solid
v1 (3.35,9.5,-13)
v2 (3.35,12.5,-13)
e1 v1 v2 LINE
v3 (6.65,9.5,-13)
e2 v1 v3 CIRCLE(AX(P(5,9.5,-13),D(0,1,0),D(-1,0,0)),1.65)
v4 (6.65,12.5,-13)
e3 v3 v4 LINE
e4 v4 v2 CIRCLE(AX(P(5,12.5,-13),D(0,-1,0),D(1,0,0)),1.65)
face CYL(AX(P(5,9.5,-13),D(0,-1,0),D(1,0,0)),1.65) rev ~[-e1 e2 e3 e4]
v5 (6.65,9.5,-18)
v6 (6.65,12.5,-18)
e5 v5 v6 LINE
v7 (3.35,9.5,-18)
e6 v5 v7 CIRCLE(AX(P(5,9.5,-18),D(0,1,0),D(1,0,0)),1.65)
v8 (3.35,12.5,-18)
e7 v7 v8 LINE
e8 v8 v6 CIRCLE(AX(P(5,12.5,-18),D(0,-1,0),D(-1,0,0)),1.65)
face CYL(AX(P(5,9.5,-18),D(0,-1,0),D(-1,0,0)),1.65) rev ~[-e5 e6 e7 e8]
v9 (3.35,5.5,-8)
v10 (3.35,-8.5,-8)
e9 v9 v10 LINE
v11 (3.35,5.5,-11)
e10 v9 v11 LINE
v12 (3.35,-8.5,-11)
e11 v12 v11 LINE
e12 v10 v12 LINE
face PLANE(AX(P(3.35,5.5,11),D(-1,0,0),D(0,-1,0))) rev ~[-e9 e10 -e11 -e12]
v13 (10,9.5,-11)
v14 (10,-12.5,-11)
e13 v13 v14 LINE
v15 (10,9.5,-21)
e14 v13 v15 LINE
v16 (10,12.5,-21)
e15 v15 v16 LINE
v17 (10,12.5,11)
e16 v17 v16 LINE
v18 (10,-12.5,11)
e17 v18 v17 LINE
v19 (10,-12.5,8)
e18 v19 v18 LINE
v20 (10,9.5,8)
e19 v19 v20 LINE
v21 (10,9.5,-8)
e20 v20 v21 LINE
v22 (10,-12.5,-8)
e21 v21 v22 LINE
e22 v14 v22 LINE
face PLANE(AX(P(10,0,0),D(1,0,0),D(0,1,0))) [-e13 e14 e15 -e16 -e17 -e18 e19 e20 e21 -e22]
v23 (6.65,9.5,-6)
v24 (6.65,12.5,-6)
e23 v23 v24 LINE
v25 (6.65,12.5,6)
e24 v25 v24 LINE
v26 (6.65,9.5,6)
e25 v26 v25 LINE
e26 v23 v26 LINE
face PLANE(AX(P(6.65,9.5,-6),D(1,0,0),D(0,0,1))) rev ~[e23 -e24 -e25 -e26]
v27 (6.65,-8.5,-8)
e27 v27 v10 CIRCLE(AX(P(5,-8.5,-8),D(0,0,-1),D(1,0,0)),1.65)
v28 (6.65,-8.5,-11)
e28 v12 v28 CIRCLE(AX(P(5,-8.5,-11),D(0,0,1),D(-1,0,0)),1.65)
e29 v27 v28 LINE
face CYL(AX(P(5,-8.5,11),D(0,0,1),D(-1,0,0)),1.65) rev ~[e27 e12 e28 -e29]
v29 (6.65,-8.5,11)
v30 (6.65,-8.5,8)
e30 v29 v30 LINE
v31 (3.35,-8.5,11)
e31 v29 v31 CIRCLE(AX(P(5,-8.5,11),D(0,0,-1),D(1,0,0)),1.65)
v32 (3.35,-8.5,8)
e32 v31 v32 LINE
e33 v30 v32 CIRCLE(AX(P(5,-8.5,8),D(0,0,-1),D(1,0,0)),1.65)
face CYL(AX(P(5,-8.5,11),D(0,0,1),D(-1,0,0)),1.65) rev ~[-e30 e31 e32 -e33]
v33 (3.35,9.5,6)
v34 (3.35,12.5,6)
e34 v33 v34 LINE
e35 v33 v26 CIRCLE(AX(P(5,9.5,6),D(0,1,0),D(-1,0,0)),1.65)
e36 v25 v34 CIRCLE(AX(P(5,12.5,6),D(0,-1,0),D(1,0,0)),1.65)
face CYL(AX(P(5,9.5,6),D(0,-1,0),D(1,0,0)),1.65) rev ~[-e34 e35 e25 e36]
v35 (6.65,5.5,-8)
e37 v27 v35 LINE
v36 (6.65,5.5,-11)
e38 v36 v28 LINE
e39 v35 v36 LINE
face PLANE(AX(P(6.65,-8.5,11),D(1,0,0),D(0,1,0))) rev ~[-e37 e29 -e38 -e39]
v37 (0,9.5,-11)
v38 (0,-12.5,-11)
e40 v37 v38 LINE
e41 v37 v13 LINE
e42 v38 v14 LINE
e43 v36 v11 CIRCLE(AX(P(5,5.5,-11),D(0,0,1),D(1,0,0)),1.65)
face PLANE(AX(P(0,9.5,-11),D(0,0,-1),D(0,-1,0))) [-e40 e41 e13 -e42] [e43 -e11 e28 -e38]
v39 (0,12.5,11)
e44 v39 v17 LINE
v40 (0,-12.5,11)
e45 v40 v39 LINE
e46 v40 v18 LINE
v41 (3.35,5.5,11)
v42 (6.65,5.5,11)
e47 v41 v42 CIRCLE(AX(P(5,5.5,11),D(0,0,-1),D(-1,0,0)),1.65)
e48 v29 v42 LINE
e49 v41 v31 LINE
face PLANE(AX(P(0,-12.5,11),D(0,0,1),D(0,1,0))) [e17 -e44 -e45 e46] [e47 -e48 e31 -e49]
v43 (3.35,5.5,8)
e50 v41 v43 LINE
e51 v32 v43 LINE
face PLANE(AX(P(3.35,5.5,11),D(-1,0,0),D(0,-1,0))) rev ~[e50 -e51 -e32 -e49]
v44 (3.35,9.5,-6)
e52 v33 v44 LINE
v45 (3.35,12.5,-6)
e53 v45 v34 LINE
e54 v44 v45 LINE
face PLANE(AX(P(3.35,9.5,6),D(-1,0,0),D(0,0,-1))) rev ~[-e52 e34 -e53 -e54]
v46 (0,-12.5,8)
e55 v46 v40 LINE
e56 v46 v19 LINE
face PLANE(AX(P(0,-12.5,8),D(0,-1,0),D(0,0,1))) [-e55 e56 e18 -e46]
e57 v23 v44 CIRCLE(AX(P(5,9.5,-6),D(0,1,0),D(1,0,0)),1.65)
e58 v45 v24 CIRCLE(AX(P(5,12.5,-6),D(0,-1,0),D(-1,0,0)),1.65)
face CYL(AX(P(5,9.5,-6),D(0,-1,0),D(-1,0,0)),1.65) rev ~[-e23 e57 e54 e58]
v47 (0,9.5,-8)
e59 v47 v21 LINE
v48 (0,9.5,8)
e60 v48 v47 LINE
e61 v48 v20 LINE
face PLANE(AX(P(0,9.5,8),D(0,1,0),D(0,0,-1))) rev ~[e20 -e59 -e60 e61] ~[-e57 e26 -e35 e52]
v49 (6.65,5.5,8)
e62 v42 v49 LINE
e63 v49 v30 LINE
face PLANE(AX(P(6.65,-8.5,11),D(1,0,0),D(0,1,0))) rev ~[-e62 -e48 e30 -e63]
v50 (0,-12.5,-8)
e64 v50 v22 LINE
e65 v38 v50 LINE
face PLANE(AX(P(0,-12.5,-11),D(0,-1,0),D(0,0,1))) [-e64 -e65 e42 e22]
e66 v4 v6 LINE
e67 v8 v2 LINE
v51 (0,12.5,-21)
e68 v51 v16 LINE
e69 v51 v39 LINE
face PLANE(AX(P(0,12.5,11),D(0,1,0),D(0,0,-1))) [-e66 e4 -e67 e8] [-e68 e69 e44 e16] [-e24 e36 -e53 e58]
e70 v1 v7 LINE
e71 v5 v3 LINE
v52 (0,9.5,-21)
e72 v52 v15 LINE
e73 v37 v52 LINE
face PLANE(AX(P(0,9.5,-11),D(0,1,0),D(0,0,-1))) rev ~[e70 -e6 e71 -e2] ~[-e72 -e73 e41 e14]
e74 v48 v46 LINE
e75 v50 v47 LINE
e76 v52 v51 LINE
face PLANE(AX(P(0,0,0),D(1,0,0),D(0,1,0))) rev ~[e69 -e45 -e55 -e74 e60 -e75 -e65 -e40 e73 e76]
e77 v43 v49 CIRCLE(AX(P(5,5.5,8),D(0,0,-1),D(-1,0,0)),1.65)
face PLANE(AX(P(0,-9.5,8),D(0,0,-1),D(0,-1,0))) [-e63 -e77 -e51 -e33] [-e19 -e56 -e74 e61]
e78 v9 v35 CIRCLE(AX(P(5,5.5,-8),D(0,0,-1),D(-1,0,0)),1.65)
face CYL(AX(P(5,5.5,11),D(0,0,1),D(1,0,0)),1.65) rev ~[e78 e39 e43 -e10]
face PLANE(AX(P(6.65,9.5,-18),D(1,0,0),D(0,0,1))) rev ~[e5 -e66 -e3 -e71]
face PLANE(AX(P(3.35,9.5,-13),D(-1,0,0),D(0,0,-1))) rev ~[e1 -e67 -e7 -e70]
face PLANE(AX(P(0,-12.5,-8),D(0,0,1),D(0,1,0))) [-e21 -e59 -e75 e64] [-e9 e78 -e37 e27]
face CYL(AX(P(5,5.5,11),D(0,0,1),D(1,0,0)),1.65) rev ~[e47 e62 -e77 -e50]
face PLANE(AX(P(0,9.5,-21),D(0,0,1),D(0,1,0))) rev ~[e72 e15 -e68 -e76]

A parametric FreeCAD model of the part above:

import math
import FreeCAD as App
import Part
import Sketcher

V = App.Vector

doc = App.newDocument("Part")
params = doc.addObject("Spreadsheet::Sheet", "Params")
for row, (alias, value) in enumerate([
    ("sketch1_width", "25 mm"),
    ("sketch1_width2", "22 mm"),
    ("sketch1_height", "16 mm"),
    ("sketch1_height2", "10 mm"),
    ("pad1_length", "10 mm"),
    ("sketch2_radius", "1.65 mm"),
    ("sketch2_height", "12 mm"),
    ("sketch2_height2", "5 mm"),
    ("sketch3_radius", "1.65 mm"),
    ("sketch3_height", "14 mm"),
], start=1):
    params.set(f"A{row}", alias)
    params.set(f"B{row}", "=" + value)
    params.setAlias(f"B{row}", alias)

body = doc.addObject("PartDesign::Body", "Body")

sketch1 = body.newObject("Sketcher::SketchObject", "Sketch")
sketch1.AttachmentSupport = (doc.getObject("YZ_Plane"), [""])
sketch1.MapMode = "FlatFace"
sketch1.addGeometry([
    Part.LineSegment(V(12.5, 11, 0), V(-12.5, 11, 0)),
    Part.LineSegment(V(-12.5, 11, 0), V(-12.5, 8, 0)),
    Part.LineSegment(V(-12.5, 8, 0), V(9.5, 8, 0)),
    Part.LineSegment(V(9.5, 8, 0), V(9.5, -8, 0)),
    Part.LineSegment(V(9.5, -8, 0), V(-12.5, -8, 0)),
    Part.LineSegment(V(-12.5, -8, 0), V(-12.5, -11, 0)),
    Part.LineSegment(V(-12.5, -11, 0), V(9.5, -11, 0)),
    Part.LineSegment(V(9.5, -11, 0), V(9.5, -21, 0)),
    Part.LineSegment(V(9.5, -21, 0), V(12.5, -21, 0)),
    Part.LineSegment(V(12.5, -21, 0), V(12.5, 11, 0)),
], False)
sketch1.addConstraint([
    Sketcher.Constraint("Coincident", 0, 2, 1, 1),
    Sketcher.Constraint("Coincident", 1, 2, 2, 1),
    Sketcher.Constraint("Coincident", 2, 2, 3, 1),
    Sketcher.Constraint("Coincident", 3, 2, 4, 1),
    Sketcher.Constraint("Coincident", 4, 2, 5, 1),
    Sketcher.Constraint("Coincident", 5, 2, 6, 1),
    Sketcher.Constraint("Coincident", 6, 2, 7, 1),
    Sketcher.Constraint("Coincident", 7, 2, 8, 1),
    Sketcher.Constraint("Coincident", 8, 2, 9, 1),
    Sketcher.Constraint("Coincident", 9, 2, 0, 1),
    Sketcher.Constraint("Horizontal", 0),
    Sketcher.Constraint("Vertical", 1),
    Sketcher.Constraint("Horizontal", 2),
    Sketcher.Constraint("Vertical", 3),
    Sketcher.Constraint("Horizontal", 4),
    Sketcher.Constraint("Vertical", 5),
    Sketcher.Constraint("Horizontal", 6),
    Sketcher.Constraint("Vertical", 7),
    Sketcher.Constraint("Horizontal", 8),
    Sketcher.Constraint("Vertical", 9),
    Sketcher.Constraint("Symmetric", 5, 2, 9, 2, -1, 1),
    Sketcher.Constraint("Symmetric", 1, 2, 4, 2, -1),
    Sketcher.Constraint("Vertical", 3, 2, 6, 2),
    Sketcher.Constraint("Equal", 8, 1),
    Sketcher.Constraint("DistanceX", 0, 2, 0, 1, 25.0),
    Sketcher.Constraint("DistanceX", 2, 1, 2, 2, 22.0),
    Sketcher.Constraint("DistanceY", 3, 2, 3, 1, 16.0),
    Sketcher.Constraint("DistanceY", 7, 2, 7, 1, 10.0),
])
sketch1.setExpression("Constraints[24]", "Params.sketch1_width")
sketch1.setExpression("Constraints[25]", "Params.sketch1_width2")
sketch1.setExpression("Constraints[26]", "Params.sketch1_height")
sketch1.setExpression("Constraints[27]", "Params.sketch1_height2")
pad1 = body.newObject("PartDesign::Pad", "Pad")
pad1.Profile = sketch1
pad1.setExpression("Length", "Params.pad1_length")

sketch2 = body.newObject("Sketcher::SketchObject", "Sketch001")
sketch2.AttachmentSupport = (doc.getObject("XZ_Plane"), [""])
sketch2.MapMode = "FlatFace"
sketch2.AttachmentOffset = App.Placement(V(0, 0, -9.5), App.Rotation())
sketch2.addGeometry([
    Part.ArcOfCircle(Part.Circle(V(5, -6, 0), V(0, 0, 1), 1.65), math.radians(180), math.radians(360)),
    Part.LineSegment(V(6.65, -6, 0), V(6.65, 6, 0)),
    Part.ArcOfCircle(Part.Circle(V(5, 6, 0), V(0, 0, 1), 1.65), math.radians(0), math.radians(180)),
    Part.LineSegment(V(3.35, 6, 0), V(3.35, -6, 0)),
    Part.ArcOfCircle(Part.Circle(V(5, -13, 0), V(0, 0, 1), 1.65), math.radians(0), math.radians(180)),
    Part.LineSegment(V(3.35, -13, 0), V(3.35, -18, 0)),
    Part.ArcOfCircle(Part.Circle(V(5, -18, 0), V(0, 0, 1), 1.65), math.radians(180), math.radians(360)),
    Part.LineSegment(V(6.65, -18, 0), V(6.65, -13, 0)),
], False)
sketch2.addConstraint([
    Sketcher.Constraint("Tangent", 0, 2, 1, 1),
    Sketcher.Constraint("Tangent", 1, 2, 2, 1),
    Sketcher.Constraint("Tangent", 2, 2, 3, 1),
    Sketcher.Constraint("Tangent", 3, 2, 0, 1),
    Sketcher.Constraint("Tangent", 4, 2, 5, 1),
    Sketcher.Constraint("Tangent", 5, 2, 6, 1),
    Sketcher.Constraint("Tangent", 6, 2, 7, 1),
    Sketcher.Constraint("Tangent", 7, 2, 4, 1),
    Sketcher.Constraint("Vertical", 1),
    Sketcher.Constraint("Vertical", 3),
    Sketcher.Constraint("Vertical", 5),
    Sketcher.Constraint("Vertical", 7),
    Sketcher.Constraint("Equal", 2, 4),
    Sketcher.Constraint("Vertical", 2, 3, 4, 3),
    Sketcher.Constraint("Radius", 0, 1.65),
    Sketcher.Constraint("DistanceY", 1, 1, 1, 2, 12.0),
    Sketcher.Constraint("DistanceY", 5, 2, 5, 1, 5.0),
    Sketcher.Constraint("DistanceX", -1, 1, 0, 3, 5.0),
    Sketcher.Constraint("DistanceY", 0, 3, -1, 1, 6.0),
    Sketcher.Constraint("DistanceY", 4, 3, -1, 1, 13.0),
])
sketch2.setExpression("Constraints[14]", "Params.sketch2_radius")
sketch2.setExpression("Constraints[15]", "Params.sketch2_height")
sketch2.setExpression("Constraints[16]", "Params.sketch2_height2")
pocket1 = body.newObject("PartDesign::Pocket", "Pocket")
pocket1.Profile = sketch2
pocket1.Type = "ThroughAll"

sketch3 = body.newObject("Sketcher::SketchObject", "Sketch002")
sketch3.AttachmentSupport = (doc.getObject("XY_Plane"), [""])
sketch3.MapMode = "FlatFace"
sketch3.AttachmentOffset = App.Placement(V(0, 0, 11), App.Rotation())
sketch3.addGeometry([
    Part.ArcOfCircle(Part.Circle(V(5, -8.5, 0), V(0, 0, 1), 1.65), math.radians(180), math.radians(360)),
    Part.LineSegment(V(6.65, -8.5, 0), V(6.65, 5.5, 0)),
    Part.ArcOfCircle(Part.Circle(V(5, 5.5, 0), V(0, 0, 1), 1.65), math.radians(0), math.radians(180)),
    Part.LineSegment(V(3.35, 5.5, 0), V(3.35, -8.5, 0)),
], False)
sketch3.addConstraint([
    Sketcher.Constraint("Tangent", 0, 2, 1, 1),
    Sketcher.Constraint("Tangent", 1, 2, 2, 1),
    Sketcher.Constraint("Tangent", 2, 2, 3, 1),
    Sketcher.Constraint("Tangent", 3, 2, 0, 1),
    Sketcher.Constraint("Vertical", 1),
    Sketcher.Constraint("Vertical", 3),
    Sketcher.Constraint("Radius", 0, 1.65),
    Sketcher.Constraint("DistanceY", 1, 1, 1, 2, 14.0),
    Sketcher.Constraint("DistanceX", -1, 1, 0, 3, 5.0),
    Sketcher.Constraint("DistanceY", 0, 3, -1, 1, 8.5),
])
sketch3.setExpression("Constraints[6]", "Params.sketch3_radius")
sketch3.setExpression("Constraints[7]", "Params.sketch3_height")
pocket2 = body.newObject("PartDesign::Pocket", "Pocket001")
pocket2.Profile = sketch3
pocket2.Type = "ThroughAll"

doc.recompute()
